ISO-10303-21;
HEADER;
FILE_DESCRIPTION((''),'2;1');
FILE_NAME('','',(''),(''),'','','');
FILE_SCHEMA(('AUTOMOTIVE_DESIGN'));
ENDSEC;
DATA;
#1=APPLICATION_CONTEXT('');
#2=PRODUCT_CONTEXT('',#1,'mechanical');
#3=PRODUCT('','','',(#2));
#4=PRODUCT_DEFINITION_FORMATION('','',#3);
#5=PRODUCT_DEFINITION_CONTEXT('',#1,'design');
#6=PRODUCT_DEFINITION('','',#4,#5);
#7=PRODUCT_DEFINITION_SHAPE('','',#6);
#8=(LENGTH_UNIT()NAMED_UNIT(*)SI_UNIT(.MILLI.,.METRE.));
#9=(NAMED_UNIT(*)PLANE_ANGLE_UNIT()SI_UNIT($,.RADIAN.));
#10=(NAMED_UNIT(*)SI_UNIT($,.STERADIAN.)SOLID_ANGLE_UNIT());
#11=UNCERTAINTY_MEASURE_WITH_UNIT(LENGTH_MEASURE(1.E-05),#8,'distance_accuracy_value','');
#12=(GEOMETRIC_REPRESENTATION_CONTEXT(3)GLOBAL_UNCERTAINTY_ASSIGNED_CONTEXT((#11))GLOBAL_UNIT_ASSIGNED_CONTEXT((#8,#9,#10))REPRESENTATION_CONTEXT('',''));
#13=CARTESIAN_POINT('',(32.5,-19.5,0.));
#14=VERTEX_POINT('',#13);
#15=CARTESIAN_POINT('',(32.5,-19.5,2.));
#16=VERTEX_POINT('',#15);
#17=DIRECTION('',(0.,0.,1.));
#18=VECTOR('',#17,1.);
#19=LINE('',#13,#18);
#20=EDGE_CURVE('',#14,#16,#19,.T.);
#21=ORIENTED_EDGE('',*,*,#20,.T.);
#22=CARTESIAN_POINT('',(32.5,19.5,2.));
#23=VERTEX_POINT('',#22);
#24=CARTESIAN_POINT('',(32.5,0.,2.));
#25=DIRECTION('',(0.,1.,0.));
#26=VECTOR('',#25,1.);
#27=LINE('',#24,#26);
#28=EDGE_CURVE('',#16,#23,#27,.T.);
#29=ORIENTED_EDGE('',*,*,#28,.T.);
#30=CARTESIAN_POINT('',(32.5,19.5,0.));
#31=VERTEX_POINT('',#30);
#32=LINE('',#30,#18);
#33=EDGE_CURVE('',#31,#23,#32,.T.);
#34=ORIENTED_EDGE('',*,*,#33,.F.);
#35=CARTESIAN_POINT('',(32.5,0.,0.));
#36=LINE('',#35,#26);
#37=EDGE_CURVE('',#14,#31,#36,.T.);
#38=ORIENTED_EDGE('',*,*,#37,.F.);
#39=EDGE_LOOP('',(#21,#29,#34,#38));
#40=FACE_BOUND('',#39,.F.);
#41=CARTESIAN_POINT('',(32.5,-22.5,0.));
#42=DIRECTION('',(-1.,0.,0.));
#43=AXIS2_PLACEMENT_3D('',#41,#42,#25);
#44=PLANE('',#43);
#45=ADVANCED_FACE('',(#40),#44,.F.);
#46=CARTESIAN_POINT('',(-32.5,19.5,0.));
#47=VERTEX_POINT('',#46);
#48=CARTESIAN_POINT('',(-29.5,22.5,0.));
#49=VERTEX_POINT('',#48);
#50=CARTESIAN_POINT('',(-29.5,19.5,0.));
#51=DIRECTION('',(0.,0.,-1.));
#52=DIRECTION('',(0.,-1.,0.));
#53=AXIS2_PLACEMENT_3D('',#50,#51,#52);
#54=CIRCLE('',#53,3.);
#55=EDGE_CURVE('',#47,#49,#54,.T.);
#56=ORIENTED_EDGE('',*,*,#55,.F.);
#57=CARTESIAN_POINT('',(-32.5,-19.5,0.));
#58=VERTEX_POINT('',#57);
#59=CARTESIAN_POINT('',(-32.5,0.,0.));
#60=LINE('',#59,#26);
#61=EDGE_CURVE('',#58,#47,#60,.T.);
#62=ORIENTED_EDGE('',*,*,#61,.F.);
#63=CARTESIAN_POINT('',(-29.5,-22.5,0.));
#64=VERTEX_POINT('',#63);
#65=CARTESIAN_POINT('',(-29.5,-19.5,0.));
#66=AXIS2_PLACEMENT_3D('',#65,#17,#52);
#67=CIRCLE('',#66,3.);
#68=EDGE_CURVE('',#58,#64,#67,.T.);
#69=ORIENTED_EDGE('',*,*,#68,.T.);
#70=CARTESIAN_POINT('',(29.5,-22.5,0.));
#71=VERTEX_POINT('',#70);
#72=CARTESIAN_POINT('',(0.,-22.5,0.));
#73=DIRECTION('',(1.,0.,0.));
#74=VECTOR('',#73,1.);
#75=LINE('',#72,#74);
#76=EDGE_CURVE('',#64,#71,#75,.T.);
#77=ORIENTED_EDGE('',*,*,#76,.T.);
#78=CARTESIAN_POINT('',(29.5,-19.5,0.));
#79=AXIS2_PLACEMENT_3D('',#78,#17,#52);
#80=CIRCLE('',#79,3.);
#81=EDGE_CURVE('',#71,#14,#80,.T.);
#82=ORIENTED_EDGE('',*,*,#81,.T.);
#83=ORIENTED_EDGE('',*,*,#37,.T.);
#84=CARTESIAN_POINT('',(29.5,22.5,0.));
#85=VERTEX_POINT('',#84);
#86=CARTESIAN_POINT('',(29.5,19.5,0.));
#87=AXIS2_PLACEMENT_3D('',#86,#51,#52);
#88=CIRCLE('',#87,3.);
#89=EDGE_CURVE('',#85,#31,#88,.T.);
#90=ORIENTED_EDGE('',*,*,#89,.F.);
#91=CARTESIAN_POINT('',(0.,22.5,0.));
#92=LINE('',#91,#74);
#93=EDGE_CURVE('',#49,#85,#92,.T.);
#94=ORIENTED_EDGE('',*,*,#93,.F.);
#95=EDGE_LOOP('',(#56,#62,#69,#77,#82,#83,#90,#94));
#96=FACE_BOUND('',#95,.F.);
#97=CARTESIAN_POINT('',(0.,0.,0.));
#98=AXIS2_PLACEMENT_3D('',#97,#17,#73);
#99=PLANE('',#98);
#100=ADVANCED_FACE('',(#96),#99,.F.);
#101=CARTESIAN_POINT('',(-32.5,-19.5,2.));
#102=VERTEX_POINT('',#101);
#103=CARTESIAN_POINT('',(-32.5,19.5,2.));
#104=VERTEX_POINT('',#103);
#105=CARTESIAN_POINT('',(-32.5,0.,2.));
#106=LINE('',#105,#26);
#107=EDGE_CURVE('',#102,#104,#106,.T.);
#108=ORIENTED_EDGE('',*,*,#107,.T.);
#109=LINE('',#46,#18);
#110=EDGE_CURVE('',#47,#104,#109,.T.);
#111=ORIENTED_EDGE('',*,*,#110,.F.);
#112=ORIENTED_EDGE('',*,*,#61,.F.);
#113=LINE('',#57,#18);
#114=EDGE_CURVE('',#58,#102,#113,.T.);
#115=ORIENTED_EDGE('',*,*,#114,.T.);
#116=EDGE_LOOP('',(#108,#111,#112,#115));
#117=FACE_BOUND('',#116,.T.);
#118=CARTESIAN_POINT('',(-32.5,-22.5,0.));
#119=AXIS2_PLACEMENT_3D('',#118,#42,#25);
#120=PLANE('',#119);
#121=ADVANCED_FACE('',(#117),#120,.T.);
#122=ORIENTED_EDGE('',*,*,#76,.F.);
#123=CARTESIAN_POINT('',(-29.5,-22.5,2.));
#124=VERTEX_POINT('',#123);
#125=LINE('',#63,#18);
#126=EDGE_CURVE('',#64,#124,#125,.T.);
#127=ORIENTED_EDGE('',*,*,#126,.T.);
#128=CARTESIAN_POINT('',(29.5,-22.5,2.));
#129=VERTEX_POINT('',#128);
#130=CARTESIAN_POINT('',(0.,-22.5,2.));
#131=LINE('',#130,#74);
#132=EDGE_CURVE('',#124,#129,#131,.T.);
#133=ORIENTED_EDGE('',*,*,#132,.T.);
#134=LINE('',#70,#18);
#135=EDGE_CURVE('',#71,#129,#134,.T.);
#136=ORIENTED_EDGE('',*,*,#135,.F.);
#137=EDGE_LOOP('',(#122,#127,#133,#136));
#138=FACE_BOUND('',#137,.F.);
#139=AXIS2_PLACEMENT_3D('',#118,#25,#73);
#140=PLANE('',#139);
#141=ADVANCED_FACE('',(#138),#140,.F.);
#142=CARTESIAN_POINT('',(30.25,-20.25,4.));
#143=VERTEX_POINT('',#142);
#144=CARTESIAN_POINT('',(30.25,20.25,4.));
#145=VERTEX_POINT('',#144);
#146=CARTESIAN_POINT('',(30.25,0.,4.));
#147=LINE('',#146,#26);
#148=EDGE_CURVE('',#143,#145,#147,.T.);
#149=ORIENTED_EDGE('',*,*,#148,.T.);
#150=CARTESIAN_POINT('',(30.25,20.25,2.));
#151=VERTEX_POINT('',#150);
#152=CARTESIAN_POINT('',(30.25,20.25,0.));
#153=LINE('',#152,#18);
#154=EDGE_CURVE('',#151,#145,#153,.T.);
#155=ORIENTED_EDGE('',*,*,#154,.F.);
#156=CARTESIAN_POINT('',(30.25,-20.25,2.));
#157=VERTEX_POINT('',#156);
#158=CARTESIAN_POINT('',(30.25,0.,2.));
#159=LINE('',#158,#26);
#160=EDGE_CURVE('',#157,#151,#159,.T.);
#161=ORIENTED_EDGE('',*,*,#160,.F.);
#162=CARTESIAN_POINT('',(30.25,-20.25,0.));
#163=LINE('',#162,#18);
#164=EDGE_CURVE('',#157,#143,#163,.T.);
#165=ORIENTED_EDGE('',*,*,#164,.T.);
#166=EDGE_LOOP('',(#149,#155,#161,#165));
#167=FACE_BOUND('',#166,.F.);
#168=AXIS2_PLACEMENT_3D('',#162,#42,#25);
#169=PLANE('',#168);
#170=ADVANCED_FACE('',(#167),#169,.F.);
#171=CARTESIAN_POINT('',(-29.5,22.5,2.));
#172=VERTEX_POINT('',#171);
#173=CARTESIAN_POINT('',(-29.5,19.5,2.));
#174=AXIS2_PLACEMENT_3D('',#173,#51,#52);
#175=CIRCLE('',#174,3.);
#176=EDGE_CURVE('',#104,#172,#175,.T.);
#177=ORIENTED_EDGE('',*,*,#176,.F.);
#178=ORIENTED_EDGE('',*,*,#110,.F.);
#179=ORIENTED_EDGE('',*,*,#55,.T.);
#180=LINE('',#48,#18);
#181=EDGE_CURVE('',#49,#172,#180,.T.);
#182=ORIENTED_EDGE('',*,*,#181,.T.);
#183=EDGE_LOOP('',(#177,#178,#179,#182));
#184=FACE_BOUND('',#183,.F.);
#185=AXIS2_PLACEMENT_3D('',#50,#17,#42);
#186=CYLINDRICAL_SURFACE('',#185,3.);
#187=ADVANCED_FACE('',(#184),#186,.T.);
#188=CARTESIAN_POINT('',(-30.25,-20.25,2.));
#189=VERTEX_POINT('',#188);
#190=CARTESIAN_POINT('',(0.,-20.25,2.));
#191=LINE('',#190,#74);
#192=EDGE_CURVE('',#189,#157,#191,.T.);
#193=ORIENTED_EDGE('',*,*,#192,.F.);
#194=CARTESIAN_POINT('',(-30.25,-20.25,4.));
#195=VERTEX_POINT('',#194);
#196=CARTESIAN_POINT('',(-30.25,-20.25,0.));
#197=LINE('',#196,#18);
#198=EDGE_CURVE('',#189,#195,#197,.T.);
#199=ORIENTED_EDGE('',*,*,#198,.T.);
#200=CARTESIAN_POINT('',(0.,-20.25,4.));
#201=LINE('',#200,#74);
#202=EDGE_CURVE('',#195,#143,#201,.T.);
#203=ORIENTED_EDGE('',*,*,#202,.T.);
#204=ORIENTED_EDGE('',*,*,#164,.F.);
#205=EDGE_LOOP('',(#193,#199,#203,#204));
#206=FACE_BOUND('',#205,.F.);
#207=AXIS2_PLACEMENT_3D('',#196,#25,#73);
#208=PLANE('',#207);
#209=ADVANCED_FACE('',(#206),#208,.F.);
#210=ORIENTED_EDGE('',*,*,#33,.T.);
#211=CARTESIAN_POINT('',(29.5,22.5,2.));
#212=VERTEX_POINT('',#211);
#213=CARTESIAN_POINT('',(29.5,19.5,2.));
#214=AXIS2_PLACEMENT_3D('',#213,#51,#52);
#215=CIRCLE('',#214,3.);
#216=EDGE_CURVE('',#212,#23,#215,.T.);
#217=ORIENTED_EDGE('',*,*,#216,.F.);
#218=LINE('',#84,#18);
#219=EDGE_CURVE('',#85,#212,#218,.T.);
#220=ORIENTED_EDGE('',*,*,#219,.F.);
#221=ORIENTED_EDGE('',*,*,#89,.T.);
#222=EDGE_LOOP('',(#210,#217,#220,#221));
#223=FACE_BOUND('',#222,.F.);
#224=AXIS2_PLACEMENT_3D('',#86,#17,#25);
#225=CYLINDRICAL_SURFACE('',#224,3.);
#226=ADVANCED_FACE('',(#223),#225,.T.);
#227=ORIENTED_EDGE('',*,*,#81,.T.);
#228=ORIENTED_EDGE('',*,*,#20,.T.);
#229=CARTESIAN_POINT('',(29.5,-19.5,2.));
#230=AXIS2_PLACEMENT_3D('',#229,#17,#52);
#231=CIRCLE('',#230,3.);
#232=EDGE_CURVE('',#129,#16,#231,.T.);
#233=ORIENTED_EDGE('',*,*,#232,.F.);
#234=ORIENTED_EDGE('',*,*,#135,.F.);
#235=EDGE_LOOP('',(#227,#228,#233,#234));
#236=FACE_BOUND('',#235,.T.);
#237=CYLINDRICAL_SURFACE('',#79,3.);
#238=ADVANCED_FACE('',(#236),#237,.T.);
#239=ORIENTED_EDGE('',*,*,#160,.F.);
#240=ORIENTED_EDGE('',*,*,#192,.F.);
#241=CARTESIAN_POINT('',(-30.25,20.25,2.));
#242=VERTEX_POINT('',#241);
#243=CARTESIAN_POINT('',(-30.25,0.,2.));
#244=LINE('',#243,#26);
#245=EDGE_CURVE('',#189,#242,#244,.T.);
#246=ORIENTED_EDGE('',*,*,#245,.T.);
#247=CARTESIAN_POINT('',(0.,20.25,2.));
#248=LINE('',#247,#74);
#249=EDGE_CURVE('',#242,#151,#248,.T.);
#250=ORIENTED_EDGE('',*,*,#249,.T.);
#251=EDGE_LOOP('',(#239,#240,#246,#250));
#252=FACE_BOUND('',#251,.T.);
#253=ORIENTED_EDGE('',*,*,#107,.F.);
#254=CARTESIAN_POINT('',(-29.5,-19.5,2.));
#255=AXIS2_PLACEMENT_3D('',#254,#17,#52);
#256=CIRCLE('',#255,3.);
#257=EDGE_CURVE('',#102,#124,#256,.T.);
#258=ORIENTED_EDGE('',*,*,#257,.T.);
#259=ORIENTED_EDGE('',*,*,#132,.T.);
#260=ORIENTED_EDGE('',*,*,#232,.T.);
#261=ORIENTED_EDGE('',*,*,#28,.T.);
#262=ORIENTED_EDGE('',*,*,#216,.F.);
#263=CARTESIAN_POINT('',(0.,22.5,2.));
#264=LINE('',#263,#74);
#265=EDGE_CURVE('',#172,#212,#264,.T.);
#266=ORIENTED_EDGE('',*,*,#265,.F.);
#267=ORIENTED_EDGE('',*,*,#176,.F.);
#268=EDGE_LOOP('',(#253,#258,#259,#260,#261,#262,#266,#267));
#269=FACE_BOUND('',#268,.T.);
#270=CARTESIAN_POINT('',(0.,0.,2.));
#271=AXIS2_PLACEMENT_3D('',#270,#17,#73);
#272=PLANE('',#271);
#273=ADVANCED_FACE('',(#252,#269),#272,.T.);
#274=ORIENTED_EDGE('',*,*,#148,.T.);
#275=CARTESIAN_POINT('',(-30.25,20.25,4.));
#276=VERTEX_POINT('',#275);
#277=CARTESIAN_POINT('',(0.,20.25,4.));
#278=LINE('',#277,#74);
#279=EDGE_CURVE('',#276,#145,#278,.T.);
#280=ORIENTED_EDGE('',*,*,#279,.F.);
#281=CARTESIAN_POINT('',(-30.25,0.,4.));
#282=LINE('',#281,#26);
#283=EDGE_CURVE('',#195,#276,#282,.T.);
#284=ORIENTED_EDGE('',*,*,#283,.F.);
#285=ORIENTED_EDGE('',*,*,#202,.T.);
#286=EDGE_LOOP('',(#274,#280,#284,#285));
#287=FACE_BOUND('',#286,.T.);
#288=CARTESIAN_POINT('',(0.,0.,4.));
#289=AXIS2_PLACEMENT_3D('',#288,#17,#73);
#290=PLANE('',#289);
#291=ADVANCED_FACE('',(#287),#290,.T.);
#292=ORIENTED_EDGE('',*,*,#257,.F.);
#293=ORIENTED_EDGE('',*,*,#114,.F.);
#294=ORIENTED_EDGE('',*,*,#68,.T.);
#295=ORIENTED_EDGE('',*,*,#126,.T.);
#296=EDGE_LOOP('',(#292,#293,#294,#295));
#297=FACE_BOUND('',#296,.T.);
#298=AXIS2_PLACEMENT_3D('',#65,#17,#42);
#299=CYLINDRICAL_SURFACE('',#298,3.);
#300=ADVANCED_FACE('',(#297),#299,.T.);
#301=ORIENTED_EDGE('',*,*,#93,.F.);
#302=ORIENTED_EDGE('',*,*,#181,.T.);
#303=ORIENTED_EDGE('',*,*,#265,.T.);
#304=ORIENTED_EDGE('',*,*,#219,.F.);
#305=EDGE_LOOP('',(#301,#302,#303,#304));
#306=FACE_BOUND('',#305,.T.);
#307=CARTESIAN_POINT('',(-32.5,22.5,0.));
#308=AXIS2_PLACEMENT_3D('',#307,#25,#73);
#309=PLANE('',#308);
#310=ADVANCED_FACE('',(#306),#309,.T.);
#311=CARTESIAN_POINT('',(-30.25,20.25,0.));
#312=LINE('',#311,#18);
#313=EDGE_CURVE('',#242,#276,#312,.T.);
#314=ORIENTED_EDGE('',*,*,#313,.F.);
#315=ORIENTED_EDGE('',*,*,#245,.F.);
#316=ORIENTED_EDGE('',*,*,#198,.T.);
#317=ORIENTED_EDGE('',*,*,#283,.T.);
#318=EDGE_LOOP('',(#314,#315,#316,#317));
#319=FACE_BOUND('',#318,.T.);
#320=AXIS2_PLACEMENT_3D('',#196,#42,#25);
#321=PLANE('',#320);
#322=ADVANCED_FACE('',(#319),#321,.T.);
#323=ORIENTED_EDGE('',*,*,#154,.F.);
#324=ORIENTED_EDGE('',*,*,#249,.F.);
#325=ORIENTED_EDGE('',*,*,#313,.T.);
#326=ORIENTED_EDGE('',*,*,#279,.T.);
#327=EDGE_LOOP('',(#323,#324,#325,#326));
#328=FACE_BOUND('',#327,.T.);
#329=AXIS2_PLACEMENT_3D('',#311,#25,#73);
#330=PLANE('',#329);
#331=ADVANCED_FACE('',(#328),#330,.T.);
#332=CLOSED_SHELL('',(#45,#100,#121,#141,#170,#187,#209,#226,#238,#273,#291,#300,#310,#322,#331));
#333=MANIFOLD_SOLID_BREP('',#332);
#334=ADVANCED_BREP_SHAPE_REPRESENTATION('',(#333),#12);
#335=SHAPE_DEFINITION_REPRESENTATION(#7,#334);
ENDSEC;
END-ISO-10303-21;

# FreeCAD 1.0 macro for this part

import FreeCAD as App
import Part
import Sketcher
Q = App.Units.Quantity


def edges_at(feature, points):
    """Names of the edges that pass closest to the given points."""
    edges = feature.Shape.Edges
    near = lambda p: min(range(len(edges)), key=lambda i: edges[i].distToShape(Part.Vertex(*p))[0])
    return sorted({f"Edge{near(p) + 1}" for p in points})

doc = App.newDocument("Part")
body = doc.addObject("PartDesign::Body", "Body")

# Sketch on XY plane
sketch1 = body.newObject("Sketcher::SketchObject", "Sketch")
sketch1.AttachmentSupport = (doc.getObject("XY_Plane"), [""])
sketch1.MapMode = "FlatFace"
sketch1.addGeometry([
    Part.LineSegment(App.Vector(-32.5, 22.5, 0), App.Vector(-32.5, -22.5, 0)),  # 0
    Part.LineSegment(App.Vector(-32.5, -22.5, 0), App.Vector(32.5, -22.5, 0)),  # 1
    Part.LineSegment(App.Vector(32.5, -22.5, 0), App.Vector(32.5, 22.5, 0)),  # 2
    Part.LineSegment(App.Vector(32.5, 22.5, 0), App.Vector(-32.5, 22.5, 0)),  # 3
    Part.LineSegment(App.Vector(30.25, -20.25, 0), App.Vector(-30.25, -20.25, 0)),  # 4
    Part.LineSegment(App.Vector(-30.25, -20.25, 0), App.Vector(-30.25, 20.25, 0)),  # 5
    Part.LineSegment(App.Vector(-30.25, 20.25, 0), App.Vector(30.25, 20.25, 0)),  # 6
    Part.LineSegment(App.Vector(30.25, 20.25, 0), App.Vector(30.25, -20.25, 0)),  # 7
], False)
sketch1.addConstraint([
    Sketcher.Constraint("Coincident", 0, 2, 1, 1),
    Sketcher.Constraint("Coincident", 1, 2, 2, 1),
    Sketcher.Constraint("Coincident", 2, 2, 3, 1),
    Sketcher.Constraint("Coincident", 3, 2, 0, 1),
    Sketcher.Constraint("Coincident", 4, 2, 5, 1),
    Sketcher.Constraint("Coincident", 5, 2, 6, 1),
    Sketcher.Constraint("Coincident", 6, 2, 7, 1),
    Sketcher.Constraint("Coincident", 7, 2, 4, 1),
    Sketcher.Constraint("Vertical", 0),
    Sketcher.Constraint("Horizontal", 1),
    Sketcher.Constraint("Vertical", 2),
    Sketcher.Constraint("Horizontal", 3),
    Sketcher.Constraint("Horizontal", 4),
    Sketcher.Constraint("Vertical", 5),
    Sketcher.Constraint("Horizontal", 6),
    Sketcher.Constraint("Vertical", 7),
    Sketcher.Constraint("Symmetric", 0, 2, 2, 2, -1, 1),
    Sketcher.Constraint("Symmetric", 4, 2, 6, 2, -1, 1),
    Sketcher.Constraint("DistanceX", 1, 1, 1, 2, Q("65 mm")),
    Sketcher.Constraint("DistanceY", 0, 2, 0, 1, Q("45 mm")),
    Sketcher.Constraint("DistanceX", 4, 2, 4, 1, Q("60.5 mm")),
    Sketcher.Constraint("DistanceY", 5, 1, 5, 2, Q("40.5 mm")),
])
pad1 = body.newObject("PartDesign::Pad", "Pad")
pad1.Profile = sketch1
pad1.Length = 2

# Sketch on XY plane
sketch2 = body.newObject("Sketcher::SketchObject", "Sketch001")
sketch2.AttachmentSupport = (doc.getObject("XY_Plane"), [""])
sketch2.MapMode = "FlatFace"
sketch2.addGeometry([
    Part.LineSegment(App.Vector(-30.25, 20.25, 0), App.Vector(-30.25, -20.25, 0)),
    Part.LineSegment(App.Vector(-30.25, -20.25, 0), App.Vector(30.25, -20.25, 0)),
    Part.LineSegment(App.Vector(30.25, -20.25, 0), App.Vector(30.25, 20.25, 0)),
    Part.LineSegment(App.Vector(30.25, 20.25, 0), App.Vector(-30.25, 20.25, 0)),
], False)
sketch2.addConstraint([
    Sketcher.Constraint("Coincident", 0, 2, 1, 1),
    Sketcher.Constraint("Coincident", 1, 2, 2, 1),
    Sketcher.Constraint("Coincident", 2, 2, 3, 1),
    Sketcher.Constraint("Coincident", 3, 2, 0, 1),
    Sketcher.Constraint("Vertical", 0),
    Sketcher.Constraint("Horizontal", 1),
    Sketcher.Constraint("Vertical", 2),
    Sketcher.Constraint("Horizontal", 3),
    Sketcher.Constraint("Symmetric", 0, 2, 2, 2, -1, 1),
    Sketcher.Constraint("DistanceX", 1, 1, 1, 2, Q("60.5 mm")),
    Sketcher.Constraint("DistanceY", 0, 2, 0, 1, Q("40.5 mm")),
])
pad2 = body.newObject("PartDesign::Pad", "Pad001")
pad2.Profile = sketch2
pad2.Length = 4
doc.recompute()

fillet = body.newObject("PartDesign::Fillet", "Fillet")
fillet.Base = (pad2, edges_at(pad2, [
    (-32.5, 22.5, 1),
    (32.5, 22.5, 1),
    (32.5, -22.5, 1),
    (-32.5, -22.5, 1),
]))
fillet.Radius = 3

doc.recompute()
